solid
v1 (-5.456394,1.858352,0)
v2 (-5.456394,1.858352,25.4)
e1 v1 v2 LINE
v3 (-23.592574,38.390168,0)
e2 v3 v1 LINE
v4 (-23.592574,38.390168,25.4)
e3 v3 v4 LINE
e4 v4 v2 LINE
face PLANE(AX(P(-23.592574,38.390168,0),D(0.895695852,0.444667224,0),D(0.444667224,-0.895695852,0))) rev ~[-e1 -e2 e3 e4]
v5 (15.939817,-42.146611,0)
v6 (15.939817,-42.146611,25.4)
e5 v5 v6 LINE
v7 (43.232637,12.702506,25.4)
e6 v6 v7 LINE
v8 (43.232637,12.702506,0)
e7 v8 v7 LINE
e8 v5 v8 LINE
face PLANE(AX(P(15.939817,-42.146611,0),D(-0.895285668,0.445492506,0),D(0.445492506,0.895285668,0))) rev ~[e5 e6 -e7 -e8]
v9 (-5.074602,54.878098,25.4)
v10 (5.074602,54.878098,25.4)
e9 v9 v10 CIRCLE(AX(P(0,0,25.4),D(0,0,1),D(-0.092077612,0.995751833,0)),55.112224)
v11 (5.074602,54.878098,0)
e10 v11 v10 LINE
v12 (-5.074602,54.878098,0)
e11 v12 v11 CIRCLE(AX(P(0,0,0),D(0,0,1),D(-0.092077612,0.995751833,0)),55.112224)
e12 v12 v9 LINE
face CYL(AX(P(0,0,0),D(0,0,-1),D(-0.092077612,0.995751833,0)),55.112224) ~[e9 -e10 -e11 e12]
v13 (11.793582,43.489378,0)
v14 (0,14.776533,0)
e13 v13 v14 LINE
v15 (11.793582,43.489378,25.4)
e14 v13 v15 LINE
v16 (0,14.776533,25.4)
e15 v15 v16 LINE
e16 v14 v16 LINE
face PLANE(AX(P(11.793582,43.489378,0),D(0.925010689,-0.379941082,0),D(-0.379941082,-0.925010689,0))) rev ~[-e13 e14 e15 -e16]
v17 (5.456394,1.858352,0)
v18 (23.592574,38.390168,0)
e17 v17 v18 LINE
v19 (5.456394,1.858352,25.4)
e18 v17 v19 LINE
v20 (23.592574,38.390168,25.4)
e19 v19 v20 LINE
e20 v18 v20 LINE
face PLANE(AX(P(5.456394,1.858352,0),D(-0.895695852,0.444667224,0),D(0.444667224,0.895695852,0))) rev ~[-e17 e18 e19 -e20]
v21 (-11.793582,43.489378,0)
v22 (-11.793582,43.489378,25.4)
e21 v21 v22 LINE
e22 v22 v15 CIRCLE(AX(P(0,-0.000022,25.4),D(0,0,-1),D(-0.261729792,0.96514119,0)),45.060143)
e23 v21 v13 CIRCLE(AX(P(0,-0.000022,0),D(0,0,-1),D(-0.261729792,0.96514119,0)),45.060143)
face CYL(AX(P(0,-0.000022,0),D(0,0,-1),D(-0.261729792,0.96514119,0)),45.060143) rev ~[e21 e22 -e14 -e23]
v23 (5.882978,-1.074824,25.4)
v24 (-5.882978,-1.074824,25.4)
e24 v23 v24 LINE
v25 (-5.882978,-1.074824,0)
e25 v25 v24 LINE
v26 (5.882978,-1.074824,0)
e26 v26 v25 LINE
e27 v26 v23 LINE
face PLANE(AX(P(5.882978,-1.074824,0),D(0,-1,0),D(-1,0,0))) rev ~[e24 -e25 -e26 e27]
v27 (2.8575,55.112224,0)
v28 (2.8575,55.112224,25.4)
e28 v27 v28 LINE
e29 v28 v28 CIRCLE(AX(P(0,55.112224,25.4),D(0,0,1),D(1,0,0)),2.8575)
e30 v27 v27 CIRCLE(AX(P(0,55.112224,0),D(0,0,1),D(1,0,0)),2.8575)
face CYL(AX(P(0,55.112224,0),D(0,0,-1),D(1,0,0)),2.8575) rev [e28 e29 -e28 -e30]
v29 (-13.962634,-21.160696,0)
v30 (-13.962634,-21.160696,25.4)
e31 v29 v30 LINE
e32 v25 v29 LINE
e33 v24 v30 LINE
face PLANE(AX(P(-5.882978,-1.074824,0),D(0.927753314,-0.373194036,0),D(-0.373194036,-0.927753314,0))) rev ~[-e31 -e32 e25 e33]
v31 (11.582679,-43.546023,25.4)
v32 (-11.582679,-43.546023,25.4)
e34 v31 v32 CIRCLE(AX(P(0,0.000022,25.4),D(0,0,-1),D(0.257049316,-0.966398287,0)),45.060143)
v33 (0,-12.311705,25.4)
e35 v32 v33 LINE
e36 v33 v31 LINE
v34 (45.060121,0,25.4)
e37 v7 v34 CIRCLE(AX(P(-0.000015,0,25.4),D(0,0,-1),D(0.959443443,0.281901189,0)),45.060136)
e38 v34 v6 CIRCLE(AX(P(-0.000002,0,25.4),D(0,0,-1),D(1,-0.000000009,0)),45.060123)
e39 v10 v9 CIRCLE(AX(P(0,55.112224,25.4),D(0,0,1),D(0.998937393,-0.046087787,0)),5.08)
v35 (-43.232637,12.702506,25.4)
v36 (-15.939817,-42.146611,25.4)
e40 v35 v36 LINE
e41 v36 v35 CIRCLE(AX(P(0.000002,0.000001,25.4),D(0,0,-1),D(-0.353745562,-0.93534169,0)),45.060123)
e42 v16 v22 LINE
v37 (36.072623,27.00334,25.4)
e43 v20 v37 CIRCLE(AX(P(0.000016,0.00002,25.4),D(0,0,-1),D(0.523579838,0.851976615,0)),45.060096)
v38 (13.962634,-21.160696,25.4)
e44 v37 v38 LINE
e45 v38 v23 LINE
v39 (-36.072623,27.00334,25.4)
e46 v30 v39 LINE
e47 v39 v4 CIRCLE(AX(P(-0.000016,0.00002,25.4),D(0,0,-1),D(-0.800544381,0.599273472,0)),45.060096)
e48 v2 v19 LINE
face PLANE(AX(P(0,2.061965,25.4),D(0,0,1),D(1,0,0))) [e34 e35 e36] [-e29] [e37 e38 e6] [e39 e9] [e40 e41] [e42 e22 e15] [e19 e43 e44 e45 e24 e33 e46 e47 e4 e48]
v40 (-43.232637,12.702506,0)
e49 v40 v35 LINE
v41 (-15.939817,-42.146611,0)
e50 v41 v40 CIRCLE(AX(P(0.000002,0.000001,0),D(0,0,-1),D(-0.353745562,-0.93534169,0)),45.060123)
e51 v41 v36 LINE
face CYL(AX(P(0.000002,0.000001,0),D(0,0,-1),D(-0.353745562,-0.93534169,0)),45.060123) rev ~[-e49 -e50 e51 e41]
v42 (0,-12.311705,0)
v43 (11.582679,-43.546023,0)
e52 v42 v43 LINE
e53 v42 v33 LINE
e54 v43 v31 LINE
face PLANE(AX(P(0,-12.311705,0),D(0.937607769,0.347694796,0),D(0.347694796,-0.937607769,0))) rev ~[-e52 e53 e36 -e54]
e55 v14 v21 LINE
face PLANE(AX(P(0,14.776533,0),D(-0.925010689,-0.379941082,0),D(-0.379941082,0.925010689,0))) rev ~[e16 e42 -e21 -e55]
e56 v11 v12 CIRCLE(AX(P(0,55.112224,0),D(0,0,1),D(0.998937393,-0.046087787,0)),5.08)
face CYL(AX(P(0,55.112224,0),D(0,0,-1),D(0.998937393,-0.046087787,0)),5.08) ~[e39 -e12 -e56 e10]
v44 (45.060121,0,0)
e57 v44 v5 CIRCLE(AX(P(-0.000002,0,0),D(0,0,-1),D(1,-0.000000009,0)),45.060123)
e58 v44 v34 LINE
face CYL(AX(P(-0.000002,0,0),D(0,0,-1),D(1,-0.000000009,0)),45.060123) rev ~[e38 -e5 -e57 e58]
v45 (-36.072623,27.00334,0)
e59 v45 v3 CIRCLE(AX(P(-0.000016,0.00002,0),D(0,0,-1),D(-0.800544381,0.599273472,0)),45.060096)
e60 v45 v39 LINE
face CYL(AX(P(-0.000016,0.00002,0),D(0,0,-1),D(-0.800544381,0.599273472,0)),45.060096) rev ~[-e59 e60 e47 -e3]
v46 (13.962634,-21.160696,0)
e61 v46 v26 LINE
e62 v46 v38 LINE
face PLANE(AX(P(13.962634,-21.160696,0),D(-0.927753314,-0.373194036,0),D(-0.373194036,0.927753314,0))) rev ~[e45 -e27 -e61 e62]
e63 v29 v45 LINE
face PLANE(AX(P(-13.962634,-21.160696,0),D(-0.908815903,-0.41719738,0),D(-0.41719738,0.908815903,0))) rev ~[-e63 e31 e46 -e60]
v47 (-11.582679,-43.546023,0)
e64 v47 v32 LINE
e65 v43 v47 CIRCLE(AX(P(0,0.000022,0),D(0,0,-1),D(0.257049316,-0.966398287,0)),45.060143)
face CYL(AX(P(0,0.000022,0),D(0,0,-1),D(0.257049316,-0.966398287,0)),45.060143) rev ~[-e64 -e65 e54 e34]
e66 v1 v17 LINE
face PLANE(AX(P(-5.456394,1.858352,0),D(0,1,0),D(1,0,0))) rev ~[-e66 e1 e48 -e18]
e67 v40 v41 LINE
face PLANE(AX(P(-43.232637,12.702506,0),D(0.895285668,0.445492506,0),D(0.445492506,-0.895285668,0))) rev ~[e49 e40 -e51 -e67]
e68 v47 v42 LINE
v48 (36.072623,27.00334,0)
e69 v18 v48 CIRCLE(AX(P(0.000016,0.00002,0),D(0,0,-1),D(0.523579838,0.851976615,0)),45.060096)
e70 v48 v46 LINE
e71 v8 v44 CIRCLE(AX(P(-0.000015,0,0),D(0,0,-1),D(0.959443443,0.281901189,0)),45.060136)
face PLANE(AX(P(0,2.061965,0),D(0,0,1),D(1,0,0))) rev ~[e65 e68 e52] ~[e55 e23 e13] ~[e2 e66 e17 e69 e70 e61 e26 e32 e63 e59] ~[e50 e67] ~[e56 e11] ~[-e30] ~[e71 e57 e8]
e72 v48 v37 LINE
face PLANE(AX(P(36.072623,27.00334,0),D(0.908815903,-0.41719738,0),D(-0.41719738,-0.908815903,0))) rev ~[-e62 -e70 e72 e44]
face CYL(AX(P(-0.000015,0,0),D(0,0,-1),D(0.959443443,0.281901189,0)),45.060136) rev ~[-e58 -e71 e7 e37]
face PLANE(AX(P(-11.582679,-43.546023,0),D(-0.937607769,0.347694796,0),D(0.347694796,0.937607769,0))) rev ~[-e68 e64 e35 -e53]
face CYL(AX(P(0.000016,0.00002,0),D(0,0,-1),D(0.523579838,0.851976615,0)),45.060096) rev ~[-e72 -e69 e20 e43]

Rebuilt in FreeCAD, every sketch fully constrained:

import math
import FreeCAD as App
import Part
import Sketcher
from FreeCAD import Vector
Q = App.Units.Quantity

doc = App.newDocument("Part")
params = doc.addObject("Spreadsheet::Sheet", "Params")
for row, (alias, value) in enumerate([
    ("sketch1_radius", "0.2 in"),
    ("sketch1_diameter", "0.225 in"),
    ("pad1_length", "1 in"),
], start=1):
    params.set(f"A{row}", alias)
    params.set(f"B{row}", "=" + value)
    params.setAlias(f"B{row}", alias)

body = doc.addObject("PartDesign::Body", "Body")

sketch1 = doc.addObject("Sketcher::SketchObject", "Sketch")
body.addObject(sketch1)
sketch1.AttachmentSupport = (doc.XY_Plane, [""])
sketch1.MapMode = "FlatFace"
sketch1.addGeometry([
    Part.ArcOfCircle(Part.Circle(Vector(0, 55.112224, 0), Vector(0, 0, 1), 5.08), math.radians(-2.641571), math.radians(182.641571)),
    Part.ArcOfCircle(Part.Circle(Vector(0, 0, 0), Vector(0, 0, 1), 55.112224), math.radians(95.283142), math.radians(444.716858)),
    Part.ArcOfCircle(Part.Circle(Vector(-0.000015, 0, 0), Vector(0, 0, 1), 45.060136), math.radians(0), math.radians(16.373706)),
    Part.ArcOfCircle(Part.Circle(Vector(-0.000002, 0, 0), Vector(0, 0, 1), 45.060123), math.radians(-69.283417), math.radians(0)),
    Part.LineSegment(Vector(15.939817, -42.146611, 0), Vector(43.232637, 12.702506, 0)),
    Part.ArcOfCircle(Part.Circle(Vector(0, 0.000022, 0), Vector(0, 0, 1), 45.060143), math.radians(-104.895051), math.radians(-75.104949)),
    Part.LineSegment(Vector(-11.582679, -43.546023, 0), Vector(0, -12.311705, 0)),
    Part.LineSegment(Vector(0, -12.311705, 0), Vector(11.582679, -43.546023, 0)),
    Part.ArcOfCircle(Part.Circle(Vector(0.000002, 0.000001, 0), Vector(0, 0, 1), 45.060123), math.radians(163.626289), math.radians(249.283418)),
    Part.LineSegment(Vector(-43.232637, 12.702506, 0), Vector(-15.939817, -42.146611, 0)),
    Part.ArcOfCircle(Part.Circle(Vector(-0.000016, 0.00002, 0), Vector(0, 0, 1), 45.060096), math.radians(121.572688), math.radians(143.182118)),
    Part.LineSegment(Vector(-23.592574, 38.390168, 0), Vector(-5.456394, 1.858352, 0)),
    Part.LineSegment(Vector(-5.456394, 1.858352, 0), Vector(5.456394, 1.858352, 0)),
    Part.LineSegment(Vector(5.456394, 1.858352, 0), Vector(23.592574, 38.390168, 0)),
    Part.ArcOfCircle(Part.Circle(Vector(0.000016, 0.00002, 0), Vector(0, 0, 1), 45.060096), math.radians(36.817882), math.radians(58.427312)),
    Part.LineSegment(Vector(36.072623, 27.00334, 0), Vector(13.962634, -21.160696, 0)),
    Part.LineSegment(Vector(13.962634, -21.160696, 0), Vector(5.882978, -1.074824, 0)),
    Part.LineSegment(Vector(5.882978, -1.074824, 0), Vector(-5.882978, -1.074824, 0)),
    Part.LineSegment(Vector(-5.882978, -1.074824, 0), Vector(-13.962634, -21.160696, 0)),
    Part.LineSegment(Vector(-13.962634, -21.160696, 0), Vector(-36.072623, 27.00334, 0)),
    Part.ArcOfCircle(Part.Circle(Vector(0, -0.000023, 0), Vector(0, 0, 1), 45.060144), math.radians(74.827273), math.radians(105.172727)),
    Part.LineSegment(Vector(11.793582, 43.489378, 0), Vector(0, 14.776533, 0)),
    Part.LineSegment(Vector(0, 14.776533, 0), Vector(-11.793582, 43.489378, 0)),
    Part.Circle(Vector(0, 55.112224, 0), Vector(0, 0, 1), 2.8575),
], False)
sketch1.addConstraint([
    Sketcher.Constraint("Coincident", 0, 1, 1, 2),
    Sketcher.Constraint("Coincident", 1, 1, 0, 2),
    Sketcher.Constraint("Coincident", 2, 1, 3, 2),
    Sketcher.Constraint("Coincident", 3, 1, 4, 1),
    Sketcher.Constraint("Coincident", 4, 2, 2, 2),
    Sketcher.Constraint("Coincident", 5, 1, 6, 1),
    Sketcher.Constraint("Coincident", 6, 2, 7, 1),
    Sketcher.Constraint("Coincident", 7, 2, 5, 2),
    Sketcher.Constraint("Coincident", 8, 1, 9, 1),
    Sketcher.Constraint("Coincident", 9, 2, 8, 2),
    Sketcher.Constraint("Coincident", 10, 1, 11, 1),
    Sketcher.Constraint("Coincident", 11, 2, 12, 1),
    Sketcher.Constraint("Coincident", 12, 2, 13, 1),
    Sketcher.Constraint("Coincident", 13, 2, 14, 2),
    Sketcher.Constraint("Coincident", 14, 1, 15, 1),
    Sketcher.Constraint("Coincident", 15, 2, 16, 1),
    Sketcher.Constraint("Coincident", 16, 2, 17, 1),
    Sketcher.Constraint("Coincident", 17, 2, 18, 1),
    Sketcher.Constraint("Coincident", 18, 2, 19, 1),
    Sketcher.Constraint("Coincident", 19, 2, 10, 2),
    Sketcher.Constraint("Coincident", 20, 1, 21, 1),
    Sketcher.Constraint("Coincident", 21, 2, 22, 1),
    Sketcher.Constraint("Coincident", 22, 2, 20, 2),
    Sketcher.Constraint("Horizontal", 12),
    Sketcher.Constraint("Horizontal", 17),
    Sketcher.Constraint("Coincident", 1, 3, -1, 1),
    Sketcher.Constraint("Coincident", 3, 3, -1, 1),
    Sketcher.Constraint("Coincident", 8, 3, -1, 1),
    Sketcher.Constraint("Coincident", 23, 3, 0, 3),
    Sketcher.Constraint("PointOnObject", 0, 3, -2),
    Sketcher.Constraint("PointOnObject", 2, 3, -1),
    Sketcher.Constraint("PointOnObject", 5, 3, -2),
    Sketcher.Constraint("PointOnObject", 20, 3, -2),
    Sketcher.Constraint("PointOnObject", 2, 1, -1),
    Sketcher.Constraint("PointOnObject", 6, 2, -2),
    Sketcher.Constraint("PointOnObject", 21, 2, -2),
    Sketcher.Constraint("Radius", 0, Q("0.2 in")),
    Sketcher.Constraint("Diameter", 23, Q("0.225 in")),
    Sketcher.Constraint("Radius", 1, Q("55.112224 mm")),
    Sketcher.Constraint("Radius", 2, Q("45.060136 mm")),
    Sketcher.Constraint("Radius", 3, Q("45.060123 mm")),
    Sketcher.Constraint("Radius", 5, Q("45.060143 mm")),
    Sketcher.Constraint("Radius", 8, Q("45.060123 mm")),
    Sketcher.Constraint("Radius", 10, Q("45.060096 mm")),
    Sketcher.Constraint("Radius", 14, Q("45.060096 mm")),
    Sketcher.Constraint("Radius", 20, Q("45.060144 mm")),
    Sketcher.Constraint("DistanceX", 12, 1, 12, 2, Q("10.912788 mm")),
    Sketcher.Constraint("DistanceY", 5, 3, 0, 3, Q("55.112202 mm")),
    Sketcher.Constraint("DistanceY", 5, 1, 20, 3, Q("43.546 mm")),
    Sketcher.Constraint("DistanceY", 7, 2, 20, 3, Q("43.546 mm")),
    Sketcher.Constraint("DistanceX", 14, 1, 2, 1, Q("8.987498 mm")),
    Sketcher.Constraint("DistanceY", 16, 2, 20, 3, Q("1.074801 mm")),
    Sketcher.Constraint("Distance", 11, Q("40.785961 mm")),
    Sketcher.Constraint("Distance", 13, Q("40.785961 mm")),
    Sketcher.Constraint("Distance", 15, Q("52.996471 mm")),
    Sketcher.Constraint("Distance", 19, Q("52.996471 mm")),
    Sketcher.Constraint("DistanceX", 17, 2, 17, 1, Q("11.765956 mm")),
    Sketcher.Constraint("DistanceY", 3, 1, -1, 1, Q("42.146611 mm")),
    Sketcher.Constraint("DistanceX", 5, 1, -1, 1, Q("11.582679 mm")),
    Sketcher.Constraint("DistanceY", 9, 2, -1, 1, Q("42.146611 mm")),
    Sketcher.Constraint("DistanceY", -1, 1, 13, 2, Q("38.390168 mm")),
    Sketcher.Constraint("DistanceY", -1, 1, 14, 1, Q("27.00334 mm")),
    Sketcher.Constraint("DistanceY", -1, 1, 19, 2, Q("27.00334 mm")),
    Sketcher.Constraint("DistanceY", -1, 1, 20, 1, Q("43.489378 mm")),
    Sketcher.Constraint("DistanceY", -1, 1, 22, 2, Q("43.489378 mm")),
    Sketcher.Constraint("DistanceY", 14, 3, 0, 1, Q("54.878078 mm")),
    Sketcher.Constraint("DistanceY", 10, 3, 0, 1, Q("54.878078 mm")),
    Sketcher.Constraint("DistanceY", 3, 1, 20, 3, Q("42.146588 mm")),
    Sketcher.Constraint("DistanceX", 14, 3, 4, 2, Q("43.232621 mm")),
    Sketcher.Constraint("DistanceX", 8, 1, 10, 3, Q("43.232621 mm")),
    Sketcher.Constraint("DistanceX", 8, 1, 2, 3, Q("43.232622 mm")),
    Sketcher.Constraint("DistanceX", 10, 1, 1, 1, Q("18.517972 mm")),
    Sketcher.Constraint("DistanceY", 15, 2, 6, 2, Q("8.848991 mm")),
    Sketcher.Constraint("DistanceX", 12, 2, 15, 2, Q("8.50624 mm")),
    Sketcher.Constraint("DistanceY", 18, 2, 6, 2, Q("8.848991 mm")),
    Sketcher.Constraint("DistanceY", 11, 2, 21, 2, Q("12.918181 mm")),
    Sketcher.Constraint("Distance", 16, Q("21.650014 mm")),
])
sketch1.setExpression("Constraints[36]", "Params.sketch1_radius")
sketch1.setExpression("Constraints[37]", "Params.sketch1_diameter")
pad1 = doc.addObject("PartDesign::Pad", "Pad")
body.addObject(pad1)
pad1.Profile = sketch1
pad1.setExpression("Length", "Params.pad1_length")

doc.recompute()
